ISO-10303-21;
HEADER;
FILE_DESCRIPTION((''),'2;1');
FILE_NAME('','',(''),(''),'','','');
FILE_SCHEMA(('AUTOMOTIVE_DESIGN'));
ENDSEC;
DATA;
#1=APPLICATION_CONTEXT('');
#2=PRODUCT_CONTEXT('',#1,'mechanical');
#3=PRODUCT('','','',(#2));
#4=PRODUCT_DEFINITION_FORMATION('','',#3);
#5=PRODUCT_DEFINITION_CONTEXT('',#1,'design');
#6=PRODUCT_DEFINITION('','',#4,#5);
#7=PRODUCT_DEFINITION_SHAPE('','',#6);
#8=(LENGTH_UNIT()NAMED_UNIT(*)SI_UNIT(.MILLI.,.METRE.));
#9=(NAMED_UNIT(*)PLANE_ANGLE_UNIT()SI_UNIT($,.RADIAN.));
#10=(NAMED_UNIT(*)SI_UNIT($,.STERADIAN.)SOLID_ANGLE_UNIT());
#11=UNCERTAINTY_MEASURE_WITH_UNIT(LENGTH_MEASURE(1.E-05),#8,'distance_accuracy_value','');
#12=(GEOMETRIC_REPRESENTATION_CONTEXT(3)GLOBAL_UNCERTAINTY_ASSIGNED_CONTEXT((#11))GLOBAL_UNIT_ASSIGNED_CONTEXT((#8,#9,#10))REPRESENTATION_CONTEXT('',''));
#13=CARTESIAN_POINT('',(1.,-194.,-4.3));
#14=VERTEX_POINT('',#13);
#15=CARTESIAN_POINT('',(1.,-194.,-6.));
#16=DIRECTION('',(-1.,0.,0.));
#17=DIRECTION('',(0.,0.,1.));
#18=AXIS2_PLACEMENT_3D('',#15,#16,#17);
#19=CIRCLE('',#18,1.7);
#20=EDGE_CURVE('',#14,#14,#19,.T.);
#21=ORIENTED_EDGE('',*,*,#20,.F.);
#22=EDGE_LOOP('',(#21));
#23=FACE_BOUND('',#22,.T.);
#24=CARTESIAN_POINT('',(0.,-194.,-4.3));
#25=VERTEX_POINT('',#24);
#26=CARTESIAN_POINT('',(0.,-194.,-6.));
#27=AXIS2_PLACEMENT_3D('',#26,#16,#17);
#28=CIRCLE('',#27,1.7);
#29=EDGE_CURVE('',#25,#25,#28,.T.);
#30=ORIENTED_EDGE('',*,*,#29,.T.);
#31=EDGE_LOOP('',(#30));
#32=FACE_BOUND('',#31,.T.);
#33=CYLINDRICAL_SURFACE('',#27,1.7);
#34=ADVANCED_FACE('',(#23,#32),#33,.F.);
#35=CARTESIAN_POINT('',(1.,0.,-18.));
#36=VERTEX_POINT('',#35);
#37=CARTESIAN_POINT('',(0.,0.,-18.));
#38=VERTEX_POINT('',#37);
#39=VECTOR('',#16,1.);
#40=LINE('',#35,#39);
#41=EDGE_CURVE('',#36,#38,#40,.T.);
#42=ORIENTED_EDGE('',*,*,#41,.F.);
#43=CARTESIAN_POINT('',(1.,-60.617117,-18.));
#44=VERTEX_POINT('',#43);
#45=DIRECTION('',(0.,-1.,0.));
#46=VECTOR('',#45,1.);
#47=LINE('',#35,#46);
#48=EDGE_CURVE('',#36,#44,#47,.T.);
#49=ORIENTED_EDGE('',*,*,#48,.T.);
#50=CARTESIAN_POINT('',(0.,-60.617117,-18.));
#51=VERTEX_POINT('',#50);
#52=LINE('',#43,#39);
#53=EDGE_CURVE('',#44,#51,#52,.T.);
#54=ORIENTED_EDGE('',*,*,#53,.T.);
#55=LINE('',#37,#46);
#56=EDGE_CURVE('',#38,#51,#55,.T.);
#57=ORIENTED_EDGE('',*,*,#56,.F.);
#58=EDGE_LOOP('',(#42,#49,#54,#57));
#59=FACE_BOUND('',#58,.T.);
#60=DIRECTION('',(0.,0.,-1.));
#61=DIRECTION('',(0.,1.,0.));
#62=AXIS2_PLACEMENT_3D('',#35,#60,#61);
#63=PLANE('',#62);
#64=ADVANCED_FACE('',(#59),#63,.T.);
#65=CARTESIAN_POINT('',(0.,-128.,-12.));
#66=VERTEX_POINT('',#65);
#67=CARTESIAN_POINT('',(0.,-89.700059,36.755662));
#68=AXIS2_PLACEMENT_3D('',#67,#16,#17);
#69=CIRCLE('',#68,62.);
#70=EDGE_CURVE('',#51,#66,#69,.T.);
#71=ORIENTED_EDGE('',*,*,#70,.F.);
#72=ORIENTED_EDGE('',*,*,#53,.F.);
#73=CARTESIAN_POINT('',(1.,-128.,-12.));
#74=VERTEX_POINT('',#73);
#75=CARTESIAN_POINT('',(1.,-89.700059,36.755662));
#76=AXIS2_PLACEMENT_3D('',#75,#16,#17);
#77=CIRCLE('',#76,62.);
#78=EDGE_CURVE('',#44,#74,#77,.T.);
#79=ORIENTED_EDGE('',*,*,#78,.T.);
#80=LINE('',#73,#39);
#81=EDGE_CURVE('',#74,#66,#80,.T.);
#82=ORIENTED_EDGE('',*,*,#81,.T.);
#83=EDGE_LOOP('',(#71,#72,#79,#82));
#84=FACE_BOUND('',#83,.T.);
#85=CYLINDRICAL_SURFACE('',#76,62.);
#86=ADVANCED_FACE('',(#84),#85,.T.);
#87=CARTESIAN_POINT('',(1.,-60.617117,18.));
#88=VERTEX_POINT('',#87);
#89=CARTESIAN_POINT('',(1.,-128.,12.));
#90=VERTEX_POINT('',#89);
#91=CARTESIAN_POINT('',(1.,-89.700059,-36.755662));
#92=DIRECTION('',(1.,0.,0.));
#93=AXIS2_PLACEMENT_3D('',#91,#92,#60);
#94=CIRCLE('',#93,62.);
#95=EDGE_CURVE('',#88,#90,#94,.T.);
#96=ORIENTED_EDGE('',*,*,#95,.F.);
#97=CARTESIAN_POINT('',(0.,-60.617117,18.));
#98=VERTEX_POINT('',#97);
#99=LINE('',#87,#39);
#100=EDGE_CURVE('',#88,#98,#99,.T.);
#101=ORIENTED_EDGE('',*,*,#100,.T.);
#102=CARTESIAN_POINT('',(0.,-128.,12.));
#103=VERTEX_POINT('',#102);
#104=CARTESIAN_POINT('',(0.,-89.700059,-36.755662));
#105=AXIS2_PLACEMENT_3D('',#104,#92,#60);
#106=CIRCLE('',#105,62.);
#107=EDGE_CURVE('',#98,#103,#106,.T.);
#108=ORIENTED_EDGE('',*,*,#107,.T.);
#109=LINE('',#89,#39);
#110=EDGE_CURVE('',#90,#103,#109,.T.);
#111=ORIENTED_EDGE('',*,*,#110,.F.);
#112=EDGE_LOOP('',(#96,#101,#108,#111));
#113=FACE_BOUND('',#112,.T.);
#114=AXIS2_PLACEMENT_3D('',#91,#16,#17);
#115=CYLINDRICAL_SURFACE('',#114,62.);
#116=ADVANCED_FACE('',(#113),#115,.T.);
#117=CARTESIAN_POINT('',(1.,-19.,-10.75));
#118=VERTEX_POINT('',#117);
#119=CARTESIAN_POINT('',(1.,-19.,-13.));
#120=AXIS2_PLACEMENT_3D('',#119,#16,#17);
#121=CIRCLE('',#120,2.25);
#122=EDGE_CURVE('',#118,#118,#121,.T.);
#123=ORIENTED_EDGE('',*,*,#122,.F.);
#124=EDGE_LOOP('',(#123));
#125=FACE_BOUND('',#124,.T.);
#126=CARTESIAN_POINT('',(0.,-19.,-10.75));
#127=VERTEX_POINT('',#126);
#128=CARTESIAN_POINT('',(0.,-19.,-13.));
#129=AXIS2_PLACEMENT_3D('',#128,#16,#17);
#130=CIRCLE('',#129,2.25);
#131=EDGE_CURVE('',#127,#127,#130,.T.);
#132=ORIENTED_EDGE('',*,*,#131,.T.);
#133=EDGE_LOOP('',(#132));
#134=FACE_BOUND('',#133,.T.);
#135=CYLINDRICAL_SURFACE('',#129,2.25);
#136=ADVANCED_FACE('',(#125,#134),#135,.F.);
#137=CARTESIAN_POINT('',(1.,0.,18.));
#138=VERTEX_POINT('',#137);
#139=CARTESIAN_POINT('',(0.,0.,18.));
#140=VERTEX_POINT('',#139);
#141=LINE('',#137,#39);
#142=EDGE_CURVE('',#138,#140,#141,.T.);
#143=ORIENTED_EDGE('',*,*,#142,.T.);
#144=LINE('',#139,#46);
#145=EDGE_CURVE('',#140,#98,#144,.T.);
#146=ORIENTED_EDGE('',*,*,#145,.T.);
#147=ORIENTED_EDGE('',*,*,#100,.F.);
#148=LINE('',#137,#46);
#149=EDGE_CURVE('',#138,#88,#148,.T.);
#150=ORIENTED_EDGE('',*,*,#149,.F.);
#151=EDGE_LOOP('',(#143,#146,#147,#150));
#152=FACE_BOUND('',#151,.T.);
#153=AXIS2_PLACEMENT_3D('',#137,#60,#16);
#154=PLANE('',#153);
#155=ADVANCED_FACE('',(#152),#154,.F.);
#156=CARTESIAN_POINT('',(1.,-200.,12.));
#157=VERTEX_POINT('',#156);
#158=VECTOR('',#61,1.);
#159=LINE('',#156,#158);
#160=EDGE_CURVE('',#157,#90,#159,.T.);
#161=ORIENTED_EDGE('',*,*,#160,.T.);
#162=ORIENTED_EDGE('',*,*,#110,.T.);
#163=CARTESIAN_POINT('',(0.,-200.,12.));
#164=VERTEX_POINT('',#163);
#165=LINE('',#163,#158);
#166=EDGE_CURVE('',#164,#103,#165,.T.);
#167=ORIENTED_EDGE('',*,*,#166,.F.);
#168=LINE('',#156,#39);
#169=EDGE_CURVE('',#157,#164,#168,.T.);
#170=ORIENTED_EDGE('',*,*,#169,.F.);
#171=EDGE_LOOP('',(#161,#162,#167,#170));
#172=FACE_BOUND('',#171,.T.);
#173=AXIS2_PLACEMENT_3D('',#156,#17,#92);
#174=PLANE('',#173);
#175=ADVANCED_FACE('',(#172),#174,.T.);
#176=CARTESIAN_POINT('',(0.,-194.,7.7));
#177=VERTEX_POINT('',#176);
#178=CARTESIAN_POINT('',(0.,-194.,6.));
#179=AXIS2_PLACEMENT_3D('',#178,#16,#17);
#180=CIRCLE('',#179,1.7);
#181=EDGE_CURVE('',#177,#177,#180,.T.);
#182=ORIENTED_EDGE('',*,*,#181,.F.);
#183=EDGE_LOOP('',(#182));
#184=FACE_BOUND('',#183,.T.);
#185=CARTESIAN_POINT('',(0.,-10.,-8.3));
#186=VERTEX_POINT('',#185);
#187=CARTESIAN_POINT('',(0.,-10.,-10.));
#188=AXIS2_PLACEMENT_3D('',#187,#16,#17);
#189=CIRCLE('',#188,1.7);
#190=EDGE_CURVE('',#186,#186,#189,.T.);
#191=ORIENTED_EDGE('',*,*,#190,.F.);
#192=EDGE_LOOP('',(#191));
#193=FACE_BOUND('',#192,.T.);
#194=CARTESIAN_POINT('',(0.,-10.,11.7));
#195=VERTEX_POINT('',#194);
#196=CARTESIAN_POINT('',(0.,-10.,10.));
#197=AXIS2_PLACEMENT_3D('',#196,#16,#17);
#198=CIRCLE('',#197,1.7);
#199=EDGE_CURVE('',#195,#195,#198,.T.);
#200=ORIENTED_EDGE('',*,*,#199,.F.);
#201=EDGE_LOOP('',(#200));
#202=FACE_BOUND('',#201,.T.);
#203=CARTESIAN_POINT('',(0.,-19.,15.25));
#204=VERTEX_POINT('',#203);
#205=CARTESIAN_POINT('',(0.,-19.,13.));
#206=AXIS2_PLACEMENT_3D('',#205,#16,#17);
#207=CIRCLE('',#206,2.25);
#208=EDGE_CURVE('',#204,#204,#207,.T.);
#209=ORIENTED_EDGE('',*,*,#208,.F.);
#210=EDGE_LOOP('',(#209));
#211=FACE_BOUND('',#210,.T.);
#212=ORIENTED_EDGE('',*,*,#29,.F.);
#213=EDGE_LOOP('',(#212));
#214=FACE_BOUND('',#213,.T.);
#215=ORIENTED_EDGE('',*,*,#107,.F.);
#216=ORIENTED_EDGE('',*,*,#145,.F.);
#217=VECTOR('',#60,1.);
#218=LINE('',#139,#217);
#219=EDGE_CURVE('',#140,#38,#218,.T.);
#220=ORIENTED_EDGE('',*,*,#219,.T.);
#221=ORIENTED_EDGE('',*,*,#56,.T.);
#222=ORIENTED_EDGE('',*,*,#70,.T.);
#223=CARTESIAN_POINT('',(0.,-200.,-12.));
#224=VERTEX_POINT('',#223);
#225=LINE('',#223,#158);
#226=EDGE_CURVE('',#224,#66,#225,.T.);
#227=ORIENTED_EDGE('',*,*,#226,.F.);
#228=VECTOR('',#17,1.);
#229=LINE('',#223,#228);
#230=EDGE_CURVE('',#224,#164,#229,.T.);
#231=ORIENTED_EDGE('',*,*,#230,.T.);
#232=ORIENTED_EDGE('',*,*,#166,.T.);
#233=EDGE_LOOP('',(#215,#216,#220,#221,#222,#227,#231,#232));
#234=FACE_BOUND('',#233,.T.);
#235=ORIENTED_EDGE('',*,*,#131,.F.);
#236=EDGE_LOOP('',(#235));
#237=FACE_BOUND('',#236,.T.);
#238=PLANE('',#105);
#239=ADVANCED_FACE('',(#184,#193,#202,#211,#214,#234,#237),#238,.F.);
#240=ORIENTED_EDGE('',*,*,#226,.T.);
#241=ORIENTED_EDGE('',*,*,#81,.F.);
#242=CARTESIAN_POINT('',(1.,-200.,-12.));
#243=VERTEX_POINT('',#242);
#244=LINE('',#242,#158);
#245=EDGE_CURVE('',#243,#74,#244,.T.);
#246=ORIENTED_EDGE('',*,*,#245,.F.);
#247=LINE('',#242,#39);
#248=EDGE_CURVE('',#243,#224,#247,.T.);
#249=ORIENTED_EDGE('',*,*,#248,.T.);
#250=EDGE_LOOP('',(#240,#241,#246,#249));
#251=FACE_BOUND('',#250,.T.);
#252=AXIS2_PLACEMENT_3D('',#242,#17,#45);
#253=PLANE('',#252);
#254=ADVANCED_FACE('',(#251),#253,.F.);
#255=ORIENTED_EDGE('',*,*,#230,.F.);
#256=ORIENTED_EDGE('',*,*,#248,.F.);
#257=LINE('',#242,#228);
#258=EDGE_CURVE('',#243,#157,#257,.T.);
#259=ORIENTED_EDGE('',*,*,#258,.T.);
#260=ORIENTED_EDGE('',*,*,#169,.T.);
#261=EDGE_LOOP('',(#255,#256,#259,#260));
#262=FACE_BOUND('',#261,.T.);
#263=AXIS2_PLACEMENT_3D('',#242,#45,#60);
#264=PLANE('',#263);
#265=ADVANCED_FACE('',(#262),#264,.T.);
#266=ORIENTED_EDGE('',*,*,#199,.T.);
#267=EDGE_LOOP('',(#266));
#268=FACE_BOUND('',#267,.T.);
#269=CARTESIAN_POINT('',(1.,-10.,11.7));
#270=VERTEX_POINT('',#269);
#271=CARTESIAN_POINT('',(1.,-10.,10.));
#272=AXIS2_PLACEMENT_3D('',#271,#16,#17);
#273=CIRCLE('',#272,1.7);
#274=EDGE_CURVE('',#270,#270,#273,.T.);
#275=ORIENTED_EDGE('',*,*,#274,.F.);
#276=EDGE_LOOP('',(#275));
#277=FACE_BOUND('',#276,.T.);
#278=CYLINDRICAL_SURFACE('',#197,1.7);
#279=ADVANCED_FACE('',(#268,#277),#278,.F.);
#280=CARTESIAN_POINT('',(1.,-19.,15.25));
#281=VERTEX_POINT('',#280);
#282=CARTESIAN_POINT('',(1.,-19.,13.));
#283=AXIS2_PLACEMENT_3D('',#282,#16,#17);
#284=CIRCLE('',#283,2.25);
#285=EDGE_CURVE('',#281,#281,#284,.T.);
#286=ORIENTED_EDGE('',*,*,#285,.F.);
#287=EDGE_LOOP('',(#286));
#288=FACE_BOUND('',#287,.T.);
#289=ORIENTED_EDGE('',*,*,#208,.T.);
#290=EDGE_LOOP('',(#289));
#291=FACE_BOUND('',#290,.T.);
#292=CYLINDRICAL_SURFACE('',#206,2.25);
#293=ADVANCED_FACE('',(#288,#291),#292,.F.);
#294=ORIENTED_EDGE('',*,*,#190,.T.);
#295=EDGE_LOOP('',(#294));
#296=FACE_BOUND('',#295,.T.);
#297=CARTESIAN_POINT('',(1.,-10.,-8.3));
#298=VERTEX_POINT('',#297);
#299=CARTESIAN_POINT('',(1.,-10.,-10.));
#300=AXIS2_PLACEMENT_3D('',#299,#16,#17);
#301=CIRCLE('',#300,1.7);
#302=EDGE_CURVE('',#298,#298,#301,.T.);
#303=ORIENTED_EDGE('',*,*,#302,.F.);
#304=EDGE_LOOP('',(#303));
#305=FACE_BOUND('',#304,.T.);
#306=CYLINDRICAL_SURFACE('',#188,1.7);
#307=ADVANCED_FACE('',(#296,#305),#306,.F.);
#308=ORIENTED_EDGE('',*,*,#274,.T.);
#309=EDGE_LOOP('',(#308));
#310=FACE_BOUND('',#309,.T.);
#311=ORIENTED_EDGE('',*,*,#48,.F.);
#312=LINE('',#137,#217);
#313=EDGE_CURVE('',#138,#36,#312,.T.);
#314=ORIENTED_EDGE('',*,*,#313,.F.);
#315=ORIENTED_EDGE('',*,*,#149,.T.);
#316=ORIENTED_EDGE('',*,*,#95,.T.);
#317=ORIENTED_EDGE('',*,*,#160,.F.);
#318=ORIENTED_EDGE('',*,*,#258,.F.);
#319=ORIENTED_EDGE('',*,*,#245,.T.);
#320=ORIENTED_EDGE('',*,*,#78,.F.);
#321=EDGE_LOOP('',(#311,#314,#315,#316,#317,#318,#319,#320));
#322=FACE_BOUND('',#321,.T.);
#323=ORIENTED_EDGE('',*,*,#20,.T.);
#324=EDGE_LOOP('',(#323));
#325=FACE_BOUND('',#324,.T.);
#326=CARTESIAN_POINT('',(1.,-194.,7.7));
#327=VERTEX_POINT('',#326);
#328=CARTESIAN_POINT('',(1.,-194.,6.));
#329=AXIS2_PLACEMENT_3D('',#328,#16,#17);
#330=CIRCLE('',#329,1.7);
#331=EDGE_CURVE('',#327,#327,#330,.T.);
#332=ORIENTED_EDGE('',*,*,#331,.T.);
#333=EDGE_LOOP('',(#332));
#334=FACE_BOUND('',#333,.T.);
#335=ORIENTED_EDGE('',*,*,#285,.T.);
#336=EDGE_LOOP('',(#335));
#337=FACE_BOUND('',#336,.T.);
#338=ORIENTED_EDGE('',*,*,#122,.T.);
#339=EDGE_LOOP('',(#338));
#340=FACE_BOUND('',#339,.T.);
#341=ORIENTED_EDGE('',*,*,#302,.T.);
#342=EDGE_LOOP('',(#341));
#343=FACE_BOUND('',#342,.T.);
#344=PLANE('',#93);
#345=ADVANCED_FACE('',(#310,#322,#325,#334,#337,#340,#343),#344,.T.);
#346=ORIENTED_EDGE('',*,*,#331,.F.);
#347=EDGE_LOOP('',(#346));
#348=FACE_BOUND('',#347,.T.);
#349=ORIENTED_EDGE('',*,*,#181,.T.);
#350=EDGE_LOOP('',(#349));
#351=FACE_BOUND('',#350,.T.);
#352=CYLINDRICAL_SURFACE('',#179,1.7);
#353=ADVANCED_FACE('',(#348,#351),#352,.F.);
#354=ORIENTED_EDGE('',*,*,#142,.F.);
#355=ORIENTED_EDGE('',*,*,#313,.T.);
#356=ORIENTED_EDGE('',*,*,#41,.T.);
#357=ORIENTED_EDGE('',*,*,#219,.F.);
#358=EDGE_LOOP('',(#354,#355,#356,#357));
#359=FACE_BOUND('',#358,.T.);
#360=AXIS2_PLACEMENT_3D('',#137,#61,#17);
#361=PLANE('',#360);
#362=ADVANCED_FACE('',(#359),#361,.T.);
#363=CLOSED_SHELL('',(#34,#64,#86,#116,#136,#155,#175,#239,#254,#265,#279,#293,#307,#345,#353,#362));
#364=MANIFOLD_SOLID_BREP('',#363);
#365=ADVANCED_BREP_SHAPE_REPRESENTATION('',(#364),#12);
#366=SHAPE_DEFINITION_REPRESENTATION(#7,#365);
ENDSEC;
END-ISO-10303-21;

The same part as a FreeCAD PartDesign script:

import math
import FreeCAD as App
import Part
import Sketcher

V = App.Vector
Q = App.Units.Quantity

doc = App.newDocument("Part")
params = doc.addObject("Spreadsheet::Sheet", "Params")
for row, (alias, value) in enumerate([
    ("sketch1_radius", "62 mm"),
    ("sketch1_width", "72 mm"),
    ("sketch1_height", "36 mm"),
    ("sketch1_height2", "24 mm"),
    ("pad1_length", "1 mm"),
    ("sketch2_diameter", "4.5 mm"),
    ("hole_diameter", "4.5 mm"),
    ("sketch3_diameter", "3.4 mm"),
    ("hole2_diameter", "3.4 mm"),
    ("sketch4_diameter", "3.4 mm"),
    ("hole3_diameter", "3.4 mm"),
], start=1):
    params.set(f"A{row}", alias)
    params.set(f"B{row}", "=" + value)
    params.setAlias(f"B{row}", alias)

body = doc.addObject("PartDesign::Body", "Body")

# Sketch on YZ plane
sketch1 = body.newObject("Sketcher::SketchObject", "Sketch")
sketch1.AttachmentSupport = (doc.getObject("YZ_Plane"), [""])
sketch1.MapMode = "FlatFace"
sketch1.addGeometry(Part.LineSegment(V(-200, -12, 0), V(-128, -12, 0)), False)
sketch1.addGeometry(Part.ArcOfCircle(Part.Circle(V(-90, 37, 0), V(0, 0, 1), 62), math.radians(-128), math.radians(-62)), False)
sketch1.addGeometry(Part.LineSegment(V(-61, -18, 0), V(0, -18, 0)), False)
sketch1.addGeometry(Part.LineSegment(V(0, -18, 0), V(0, 18, 0)), False)
sketch1.addGeometry(Part.LineSegment(V(0, 18, 0), V(-61, 18, 0)), False)
sketch1.addGeometry(Part.ArcOfCircle(Part.Circle(V(-90, -37, 0), V(0, 0, 1), 62), math.radians(62), math.radians(128)), False)
sketch1.addGeometry(Part.LineSegment(V(-128, 12, 0), V(-200, 12, 0)), False)
sketch1.addGeometry(Part.LineSegment(V(-200, 12, 0), V(-200, -12, 0)), False)
sketch1.addConstraint(Sketcher.Constraint("Coincident", 0, 2, 1, 1))
sketch1.addConstraint(Sketcher.Constraint("Coincident", 1, 2, 2, 1))
sketch1.addConstraint(Sketcher.Constraint("Coincident", 2, 2, 3, 1))
sketch1.addConstraint(Sketcher.Constraint("Coincident", 3, 2, 4, 1))
sketch1.addConstraint(Sketcher.Constraint("Coincident", 4, 2, 5, 1))
sketch1.addConstraint(Sketcher.Constraint("Coincident", 5, 2, 6, 1))
sketch1.addConstraint(Sketcher.Constraint("Coincident", 6, 2, 7, 1))
sketch1.addConstraint(Sketcher.Constraint("Coincident", 7, 2, 0, 1))
sketch1.addConstraint(Sketcher.Constraint("Horizontal", 0))
sketch1.addConstraint(Sketcher.Constraint("Horizontal", 2))
sketch1.addConstraint(Sketcher.Constraint("Vertical", 3))
sketch1.addConstraint(Sketcher.Constraint("Horizontal", 4))
sketch1.addConstraint(Sketcher.Constraint("Horizontal", 6))
sketch1.addConstraint(Sketcher.Constraint("Vertical", 7))
sketch1.addConstraint(Sketcher.Constraint("Equal", 1, 5))
sketch1.addConstraint(Sketcher.Constraint("Symmetric", 2, 2, 3, 2, -1, 1))
sketch1.addConstraint(Sketcher.Constraint("Symmetric", 1, 3, 5, 3, -1))
sketch1.addConstraint(Sketcher.Constraint("Vertical", 0, 2, 5, 2))
sketch1.addConstraint(Sketcher.Constraint("Radius", 1, Q("62 mm")))
sketch1.addConstraint(Sketcher.Constraint("DistanceX", 0, 1, 0, 2, Q("72 mm")))
sketch1.addConstraint(Sketcher.Constraint("DistanceY", 3, 1, 3, 2, Q("36 mm")))
sketch1.addConstraint(Sketcher.Constraint("DistanceY", 7, 2, 7, 1, Q("24 mm")))
sketch1.addConstraint(Sketcher.Constraint("DistanceX", 0, 2, -1, 1, Q("128 mm")))
sketch1.addConstraint(Sketcher.Constraint("DistanceX", 2, 1, 2, 2, Q("60.617117 mm")))
sketch1.setExpression("Constraints[18]", "Params.sketch1_radius")
sketch1.setExpression("Constraints[19]", "Params.sketch1_width")
sketch1.setExpression("Constraints[20]", "Params.sketch1_height")
sketch1.setExpression("Constraints[21]", "Params.sketch1_height2")
pad1 = body.newObject("PartDesign::Pad", "Pad")
pad1.Profile = sketch1
pad1.setExpression("Length", "Params.pad1_length")

# Sketch on YZ plane
sketch2 = body.newObject("Sketcher::SketchObject", "Sketch001")
sketch2.AttachmentSupport = (doc.getObject("YZ_Plane"), [""])
sketch2.MapMode = "FlatFace"
sketch2.addGeometry(Part.Circle(V(-19, 13, 0), V(0, 0, 1), 2.2), False)
sketch2.addGeometry(Part.Circle(V(-19, -13, 0), V(0, 0, 1), 2.2), False)
sketch2.addConstraint(Sketcher.Constraint("Equal", 0, 1))
sketch2.addConstraint(Sketcher.Constraint("Symmetric", 0, 3, 1, 3, -1))
sketch2.addConstraint(Sketcher.Constraint("Diameter", 0, Q("4.5 mm")))
sketch2.addConstraint(Sketcher.Constraint("DistanceX", 0, 3, -1, 1, Q("19 mm")))
sketch2.addConstraint(Sketcher.Constraint("DistanceY", -1, 1, 0, 3, Q("13 mm")))
sketch2.setExpression("Constraints[2]", "Params.sketch2_diameter")
doc.recompute()
hole = body.newObject("PartDesign::Hole", "Hole")
hole.Profile = sketch2
hole.ThreadType = "None"
hole.setExpression("Diameter", "Params.hole_diameter")
hole.DepthType = "ThroughAll"
hole.Reversed = True

# Sketch on YZ plane
sketch3 = body.newObject("Sketcher::SketchObject", "Sketch002")
sketch3.AttachmentSupport = (doc.getObject("YZ_Plane"), [""])
sketch3.MapMode = "FlatFace"
sketch3.addGeometry(Part.Circle(V(-10, -10, 0), V(0, 0, 1), 1.7), False)
sketch3.addGeometry(Part.Circle(V(-10, 10, 0), V(0, 0, 1), 1.7), False)
sketch3.addConstraint(Sketcher.Constraint("Equal", 0, 1))
sketch3.addConstraint(Sketcher.Constraint("Symmetric", 0, 3, 1, 3, -1))
sketch3.addConstraint(Sketcher.Constraint("Diameter", 0, Q("3.4 mm")))
sketch3.addConstraint(Sketcher.Constraint("DistanceX", 0, 3, -1, 1, Q("10 mm")))
sketch3.addConstraint(Sketcher.Constraint("DistanceY", 0, 3, -1, 1, Q("10 mm")))
sketch3.setExpression("Constraints[2]", "Params.sketch3_diameter")
doc.recompute()
hole2 = body.newObject("PartDesign::Hole", "Hole001")
hole2.Profile = sketch3
hole2.ThreadType = "None"
hole2.setExpression("Diameter", "Params.hole2_diameter")
hole2.DepthType = "ThroughAll"
hole2.Reversed = True

# Sketch on YZ plane
sketch4 = body.newObject("Sketcher::SketchObject", "Sketch003")
sketch4.AttachmentSupport = (doc.getObject("YZ_Plane"), [""])
sketch4.MapMode = "FlatFace"
sketch4.addGeometry(Part.Circle(V(-194, 6, 0), V(0, 0, 1), 1.7), False)
sketch4.addGeometry(Part.Circle(V(-194, -6, 0), V(0, 0, 1), 1.7), False)
sketch4.addConstraint(Sketcher.Constraint("Equal", 0, 1))
sketch4.addConstraint(Sketcher.Constraint("Symmetric", 0, 3, 1, 3, -1))
sketch4.addConstraint(Sketcher.Constraint("Diameter", 0, Q("3.4 mm")))
sketch4.addConstraint(Sketcher.Constraint("DistanceX", 0, 3, -1, 1, Q("194 mm")))
sketch4.addConstraint(Sketcher.Constraint("DistanceY", -1, 1, 0, 3, Q("6 mm")))
sketch4.setExpression("Constraints[2]", "Params.sketch4_diameter")
doc.recompute()
hole3 = body.newObject("PartDesign::Hole", "Hole002")
hole3.Profile = sketch4
hole3.ThreadType = "None"
hole3.setExpression("Diameter", "Params.hole3_diameter")
hole3.DepthType = "ThroughAll"
hole3.Reversed = True

doc.recompute()
